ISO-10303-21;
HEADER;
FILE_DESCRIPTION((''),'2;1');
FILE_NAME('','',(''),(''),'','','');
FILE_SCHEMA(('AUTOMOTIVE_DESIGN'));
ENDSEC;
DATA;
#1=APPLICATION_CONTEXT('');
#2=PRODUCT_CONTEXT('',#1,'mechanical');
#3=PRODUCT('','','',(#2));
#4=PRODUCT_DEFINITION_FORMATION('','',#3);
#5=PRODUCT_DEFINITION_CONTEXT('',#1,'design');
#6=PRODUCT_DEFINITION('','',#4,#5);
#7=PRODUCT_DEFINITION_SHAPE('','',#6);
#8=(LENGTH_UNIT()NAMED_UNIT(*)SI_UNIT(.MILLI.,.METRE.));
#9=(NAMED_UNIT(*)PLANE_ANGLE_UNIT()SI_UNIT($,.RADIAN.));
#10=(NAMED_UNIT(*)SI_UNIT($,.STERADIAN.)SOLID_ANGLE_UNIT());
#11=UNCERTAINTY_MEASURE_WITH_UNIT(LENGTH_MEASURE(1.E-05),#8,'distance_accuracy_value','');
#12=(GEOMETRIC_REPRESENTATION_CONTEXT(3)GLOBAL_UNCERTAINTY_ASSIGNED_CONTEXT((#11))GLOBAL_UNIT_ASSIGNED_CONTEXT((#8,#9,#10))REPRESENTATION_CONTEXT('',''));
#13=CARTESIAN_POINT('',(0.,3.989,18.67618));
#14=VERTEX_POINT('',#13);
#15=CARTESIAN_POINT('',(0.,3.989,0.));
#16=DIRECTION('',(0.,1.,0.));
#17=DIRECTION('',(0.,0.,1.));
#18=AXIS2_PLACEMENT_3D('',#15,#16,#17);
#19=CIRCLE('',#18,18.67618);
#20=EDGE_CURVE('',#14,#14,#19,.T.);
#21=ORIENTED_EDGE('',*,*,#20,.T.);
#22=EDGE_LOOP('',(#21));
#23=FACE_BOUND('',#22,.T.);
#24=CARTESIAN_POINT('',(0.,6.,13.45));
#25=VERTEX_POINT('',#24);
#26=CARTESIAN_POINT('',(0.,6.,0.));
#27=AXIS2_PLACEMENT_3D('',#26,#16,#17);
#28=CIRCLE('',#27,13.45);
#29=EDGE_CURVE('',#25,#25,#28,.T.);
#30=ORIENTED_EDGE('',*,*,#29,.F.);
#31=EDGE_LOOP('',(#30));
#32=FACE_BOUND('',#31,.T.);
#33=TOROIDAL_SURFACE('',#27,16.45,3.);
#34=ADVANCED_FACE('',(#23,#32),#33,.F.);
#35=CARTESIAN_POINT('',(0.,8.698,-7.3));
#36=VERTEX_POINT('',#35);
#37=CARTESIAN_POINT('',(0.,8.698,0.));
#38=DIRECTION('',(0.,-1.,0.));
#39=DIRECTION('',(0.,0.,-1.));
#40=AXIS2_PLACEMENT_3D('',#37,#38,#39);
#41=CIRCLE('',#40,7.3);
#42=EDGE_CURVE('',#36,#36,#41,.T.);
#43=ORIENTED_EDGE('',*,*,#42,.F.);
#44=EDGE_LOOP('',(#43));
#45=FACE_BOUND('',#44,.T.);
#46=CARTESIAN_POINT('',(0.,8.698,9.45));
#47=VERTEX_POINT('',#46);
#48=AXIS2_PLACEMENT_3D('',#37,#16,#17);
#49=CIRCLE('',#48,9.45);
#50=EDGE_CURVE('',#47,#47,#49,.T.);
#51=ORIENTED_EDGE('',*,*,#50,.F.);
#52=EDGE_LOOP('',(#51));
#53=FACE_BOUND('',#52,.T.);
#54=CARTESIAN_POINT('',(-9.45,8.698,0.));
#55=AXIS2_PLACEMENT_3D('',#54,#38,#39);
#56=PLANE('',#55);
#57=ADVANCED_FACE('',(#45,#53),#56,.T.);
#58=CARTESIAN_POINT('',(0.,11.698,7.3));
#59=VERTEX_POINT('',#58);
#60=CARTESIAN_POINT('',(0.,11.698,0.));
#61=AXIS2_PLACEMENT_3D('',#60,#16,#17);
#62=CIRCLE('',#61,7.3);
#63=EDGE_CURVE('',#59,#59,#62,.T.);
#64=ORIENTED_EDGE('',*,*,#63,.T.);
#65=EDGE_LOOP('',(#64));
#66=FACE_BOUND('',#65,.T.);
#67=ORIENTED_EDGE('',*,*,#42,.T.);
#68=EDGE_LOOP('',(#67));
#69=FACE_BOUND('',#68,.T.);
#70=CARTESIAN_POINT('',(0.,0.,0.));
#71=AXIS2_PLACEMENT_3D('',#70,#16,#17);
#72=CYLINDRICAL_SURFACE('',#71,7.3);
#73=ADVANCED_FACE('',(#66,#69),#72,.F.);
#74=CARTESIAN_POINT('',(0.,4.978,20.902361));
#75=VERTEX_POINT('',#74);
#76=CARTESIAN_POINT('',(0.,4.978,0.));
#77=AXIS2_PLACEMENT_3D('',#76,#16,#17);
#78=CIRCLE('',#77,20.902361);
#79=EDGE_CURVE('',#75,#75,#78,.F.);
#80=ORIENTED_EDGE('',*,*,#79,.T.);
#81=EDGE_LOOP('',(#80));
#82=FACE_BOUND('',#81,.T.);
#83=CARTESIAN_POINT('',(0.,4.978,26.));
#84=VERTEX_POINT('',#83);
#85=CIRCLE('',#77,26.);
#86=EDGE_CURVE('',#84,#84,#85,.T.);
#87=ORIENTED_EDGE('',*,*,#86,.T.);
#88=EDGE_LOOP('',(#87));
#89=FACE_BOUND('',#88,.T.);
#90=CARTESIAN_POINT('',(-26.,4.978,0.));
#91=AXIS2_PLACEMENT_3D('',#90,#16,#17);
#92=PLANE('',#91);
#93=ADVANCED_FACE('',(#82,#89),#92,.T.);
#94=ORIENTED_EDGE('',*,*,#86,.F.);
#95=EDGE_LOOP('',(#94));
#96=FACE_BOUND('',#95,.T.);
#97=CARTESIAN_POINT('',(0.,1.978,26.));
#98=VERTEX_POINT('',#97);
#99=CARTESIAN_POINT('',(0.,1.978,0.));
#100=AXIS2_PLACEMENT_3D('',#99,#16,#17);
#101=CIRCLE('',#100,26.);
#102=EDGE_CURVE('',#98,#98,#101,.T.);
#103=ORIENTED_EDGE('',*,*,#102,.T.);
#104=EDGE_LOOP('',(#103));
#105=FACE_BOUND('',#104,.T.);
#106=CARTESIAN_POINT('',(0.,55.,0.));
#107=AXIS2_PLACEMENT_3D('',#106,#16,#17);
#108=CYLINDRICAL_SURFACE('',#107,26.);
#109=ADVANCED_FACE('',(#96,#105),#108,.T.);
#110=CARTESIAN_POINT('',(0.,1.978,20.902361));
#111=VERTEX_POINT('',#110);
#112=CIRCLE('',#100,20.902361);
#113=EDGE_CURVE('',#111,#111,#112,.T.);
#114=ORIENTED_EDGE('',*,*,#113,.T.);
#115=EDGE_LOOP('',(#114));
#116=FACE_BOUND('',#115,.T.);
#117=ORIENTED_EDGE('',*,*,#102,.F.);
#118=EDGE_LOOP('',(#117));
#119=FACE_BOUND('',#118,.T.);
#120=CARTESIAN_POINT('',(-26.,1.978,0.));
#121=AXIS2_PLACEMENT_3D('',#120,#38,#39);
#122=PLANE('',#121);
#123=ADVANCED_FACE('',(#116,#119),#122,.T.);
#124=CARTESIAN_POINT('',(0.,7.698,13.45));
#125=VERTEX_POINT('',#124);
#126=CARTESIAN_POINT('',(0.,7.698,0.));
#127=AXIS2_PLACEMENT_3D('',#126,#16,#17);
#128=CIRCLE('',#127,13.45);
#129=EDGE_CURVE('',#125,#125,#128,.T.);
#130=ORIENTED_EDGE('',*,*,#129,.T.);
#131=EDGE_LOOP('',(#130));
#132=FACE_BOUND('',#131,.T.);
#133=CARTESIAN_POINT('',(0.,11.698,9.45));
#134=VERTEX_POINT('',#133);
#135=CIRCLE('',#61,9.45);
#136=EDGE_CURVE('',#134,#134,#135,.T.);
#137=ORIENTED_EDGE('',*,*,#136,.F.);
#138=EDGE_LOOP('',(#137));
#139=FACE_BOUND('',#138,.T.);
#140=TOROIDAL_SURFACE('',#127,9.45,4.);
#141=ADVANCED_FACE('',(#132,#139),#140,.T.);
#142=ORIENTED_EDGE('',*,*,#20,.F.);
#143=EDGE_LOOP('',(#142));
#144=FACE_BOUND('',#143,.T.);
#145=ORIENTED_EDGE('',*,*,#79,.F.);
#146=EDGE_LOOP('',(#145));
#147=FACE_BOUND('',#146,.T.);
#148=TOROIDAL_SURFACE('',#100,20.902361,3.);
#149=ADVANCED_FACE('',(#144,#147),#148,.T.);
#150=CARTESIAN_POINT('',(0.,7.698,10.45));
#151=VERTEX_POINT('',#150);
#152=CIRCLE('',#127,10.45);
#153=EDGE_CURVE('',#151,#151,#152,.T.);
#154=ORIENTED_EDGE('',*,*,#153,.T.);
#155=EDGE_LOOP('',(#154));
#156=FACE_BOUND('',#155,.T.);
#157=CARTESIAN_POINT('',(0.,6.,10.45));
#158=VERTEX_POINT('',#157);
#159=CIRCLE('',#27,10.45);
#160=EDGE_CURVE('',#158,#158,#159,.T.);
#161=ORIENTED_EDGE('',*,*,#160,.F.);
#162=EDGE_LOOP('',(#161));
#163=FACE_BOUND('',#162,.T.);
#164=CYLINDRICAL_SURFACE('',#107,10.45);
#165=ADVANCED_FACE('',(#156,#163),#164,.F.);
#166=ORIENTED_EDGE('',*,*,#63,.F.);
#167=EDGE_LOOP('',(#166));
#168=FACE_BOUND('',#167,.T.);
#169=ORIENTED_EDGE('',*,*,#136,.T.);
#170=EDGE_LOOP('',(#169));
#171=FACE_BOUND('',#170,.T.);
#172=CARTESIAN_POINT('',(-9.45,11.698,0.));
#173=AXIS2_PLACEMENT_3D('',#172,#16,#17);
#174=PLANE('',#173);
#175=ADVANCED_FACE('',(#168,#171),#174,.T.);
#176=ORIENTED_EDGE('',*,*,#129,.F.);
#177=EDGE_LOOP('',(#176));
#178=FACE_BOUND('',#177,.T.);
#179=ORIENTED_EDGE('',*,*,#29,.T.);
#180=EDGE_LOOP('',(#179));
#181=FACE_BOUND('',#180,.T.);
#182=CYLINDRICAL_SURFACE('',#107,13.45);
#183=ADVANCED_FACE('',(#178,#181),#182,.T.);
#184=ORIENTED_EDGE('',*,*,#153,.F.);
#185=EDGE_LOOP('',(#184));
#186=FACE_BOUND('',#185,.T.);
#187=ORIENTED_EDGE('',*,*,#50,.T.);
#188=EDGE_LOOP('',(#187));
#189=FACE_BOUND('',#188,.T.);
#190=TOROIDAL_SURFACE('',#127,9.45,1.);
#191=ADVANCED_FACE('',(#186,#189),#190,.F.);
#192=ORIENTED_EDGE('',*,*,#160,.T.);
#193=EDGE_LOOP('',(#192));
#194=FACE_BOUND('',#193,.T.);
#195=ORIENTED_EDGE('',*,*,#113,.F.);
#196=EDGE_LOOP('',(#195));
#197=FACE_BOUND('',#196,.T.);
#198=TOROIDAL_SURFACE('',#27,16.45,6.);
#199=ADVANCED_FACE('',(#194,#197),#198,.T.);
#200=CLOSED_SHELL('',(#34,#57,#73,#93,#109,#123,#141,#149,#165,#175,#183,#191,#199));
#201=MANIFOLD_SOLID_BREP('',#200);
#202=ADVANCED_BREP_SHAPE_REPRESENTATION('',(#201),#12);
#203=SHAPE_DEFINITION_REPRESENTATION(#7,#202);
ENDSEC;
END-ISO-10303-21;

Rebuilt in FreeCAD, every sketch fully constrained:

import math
import FreeCAD as App
import Part
import Sketcher

V = App.Vector
Q = App.Units.Quantity


def edges_at(feature, points):
    """Names of the edges that pass closest to the given points."""
    edges = feature.Shape.Edges
    near = lambda p: min(range(len(edges)), key=lambda i: edges[i].distToShape(Part.Vertex(*p))[0])
    return sorted({f"Edge{near(p) + 1}" for p in points})

doc = App.newDocument("Part")
params = doc.addObject("Spreadsheet::Sheet", "Params")
for row, (alias, value) in enumerate([
    ("sketch1_radius", "6 mm"),
    ("sketch1_radius2", "1 mm"),
    ("sketch1_radius3", "4 mm"),
    ("sketch1_width", "9.45 mm"),
    ("revolution_angle", "360 deg"),
    ("fillet_radius", "3 mm"),
    ("sketch2_diameter", "14.6 mm"),
], start=1):
    params.set(f"A{row}", alias)
    params.set(f"B{row}", "=" + value)
    params.setAlias(f"B{row}", alias)

body = doc.addObject("PartDesign::Body", "Body")

# Sketch on XY plane
sketch1 = body.newObject("Sketcher::SketchObject", "Sketch")
sketch1.AttachmentSupport = (doc.getObject("XY_Plane"), [""])
sketch1.MapMode = "FlatFace"
sketch1.addGeometry([
    Part.LineSegment(V(-19.270552, 4.978, 0), V(-26, 4.978, 0)),  # 0
    Part.LineSegment(V(-26, 4.978, 0), V(-26, 1.978, 0)),  # 1
    Part.LineSegment(V(-26, 1.978, 0), V(-20.902361, 1.978, 0)),  # 2
    Part.ArcOfCircle(Part.Circle(V(-16.45, 6, 0), V(0, 0, 1), 6), math.radians(-137.907203), math.radians(0)),  # 3
    Part.LineSegment(V(-10.45, 6, 0), V(-10.45, 7.698, 0)),  # 4
    Part.ArcOfCircle(Part.Circle(V(-9.45, 7.698, 0), V(0, 0, 1), 1), math.radians(90), math.radians(180)),  # 5
    Part.LineSegment(V(-9.45, 8.698, 0), V(0, 8.698, 0)),  # 6
    Part.LineSegment(V(0, 8.698, 0), V(0, 11.698, 0)),  # 7
    Part.LineSegment(V(0, 11.698, 0), V(-9.45, 11.698, 0)),  # 8
    Part.ArcOfCircle(Part.Circle(V(-9.45, 7.698, 0), V(0, 0, 1), 4), math.radians(90), math.radians(180)),  # 9
    Part.LineSegment(V(-13.45, 7.698, 0), V(-13.45, 6, 0)),  # 10
    Part.ArcOfCircle(Part.Circle(V(-16.45, 6, 0), V(0, 0, 1), 3), math.radians(-160.082504), math.radians(0)),  # 11
], False)
sketch1.addConstraint([
    Sketcher.Constraint("Coincident", 0, 2, 1, 1),
    Sketcher.Constraint("Coincident", 1, 2, 2, 1),
    Sketcher.Constraint("Coincident", 2, 2, 3, 1),
    Sketcher.Constraint("Tangent", 3, 2, 4, 1),
    Sketcher.Constraint("Tangent", 4, 2, 5, 2),
    Sketcher.Constraint("Tangent", 5, 1, 6, 1),
    Sketcher.Constraint("Coincident", 6, 2, 7, 1),
    Sketcher.Constraint("Coincident", 7, 2, 8, 1),
    Sketcher.Constraint("Tangent", 8, 2, 9, 1),
    Sketcher.Constraint("Tangent", 9, 2, 10, 1),
    Sketcher.Constraint("Tangent", 10, 2, 11, 2),
    Sketcher.Constraint("Coincident", 11, 1, 0, 1),
    Sketcher.Constraint("Horizontal", 0),
    Sketcher.Constraint("Vertical", 1),
    Sketcher.Constraint("Horizontal", 2),
    Sketcher.Constraint("Vertical", 4),
    Sketcher.Constraint("Horizontal", 6),
    Sketcher.Constraint("Vertical", 7),
    Sketcher.Constraint("Horizontal", 8),
    Sketcher.Constraint("Vertical", 10),
    Sketcher.Constraint("Coincident", 9, 3, 5, 3),
    Sketcher.Constraint("Coincident", 11, 3, 3, 3),
    Sketcher.Constraint("PointOnObject", 6, 2, -2),
    Sketcher.Constraint("Equal", 1, 7),
    Sketcher.Constraint("Radius", 3, Q("6 mm")),
    Sketcher.Constraint("Radius", 5, Q("1 mm")),
    Sketcher.Constraint("Radius", 9, Q("4 mm")),
    Sketcher.Constraint("DistanceY", -1, 1, 3, 3, Q("6 mm")),
    Sketcher.Constraint("DistanceX", 0, 2, -1, 1, Q("26 mm")),
    Sketcher.Constraint("DistanceX", 6, 1, 6, 2, Q("9.45 mm")),
    Sketcher.Constraint("DistanceY", 4, 1, 4, 2, Q("1.698 mm")),
    Sketcher.Constraint("DistanceY", 0, 2, 9, 3, Q("2.72 mm")),
])
sketch1.setExpression("Constraints[24]", "Params.sketch1_radius")
sketch1.setExpression("Constraints[25]", "Params.sketch1_radius2")
sketch1.setExpression("Constraints[26]", "Params.sketch1_radius3")
sketch1.setExpression("Constraints[29]", "Params.sketch1_width")
revolution = body.newObject("PartDesign::Revolution", "Revolution")
revolution.Profile = sketch1
revolution.ReferenceAxis = (sketch1, ["V_Axis"])
revolution.setExpression("Angle", "Params.revolution_angle")
doc.recompute()

fillet = body.newObject("PartDesign::Fillet", "Fillet")
fillet.Base = (revolution, edges_at(revolution, [(19.271, 4.978, 0)]))
fillet.setExpression("Radius", "Params.fillet_radius")

# Sketch on XZ plane
sketch2 = body.newObject("Sketcher::SketchObject", "Sketch001")
sketch2.AttachmentSupport = (doc.getObject("XZ_Plane"), [""])
sketch2.MapMode = "FlatFace"
sketch2.AttachmentOffset = App.Placement(V(0, 0, -11.698), App.Rotation())
sketch2.addGeometry(Part.Circle(V(0, 0, 0), V(0, 0, 1), 7.3), False)
sketch2.addConstraint([
    Sketcher.Constraint("Coincident", 0, 3, -1, 1),
    Sketcher.Constraint("Diameter", 0, Q("14.6 mm")),
])
sketch2.setExpression("Constraints[1]", "Params.sketch2_diameter")
pocket1 = body.newObject("PartDesign::Pocket", "Pocket")
pocket1.Profile = sketch2
pocket1.Type = "ThroughAll"
pocket1.Reversed = True

doc.recompute()
